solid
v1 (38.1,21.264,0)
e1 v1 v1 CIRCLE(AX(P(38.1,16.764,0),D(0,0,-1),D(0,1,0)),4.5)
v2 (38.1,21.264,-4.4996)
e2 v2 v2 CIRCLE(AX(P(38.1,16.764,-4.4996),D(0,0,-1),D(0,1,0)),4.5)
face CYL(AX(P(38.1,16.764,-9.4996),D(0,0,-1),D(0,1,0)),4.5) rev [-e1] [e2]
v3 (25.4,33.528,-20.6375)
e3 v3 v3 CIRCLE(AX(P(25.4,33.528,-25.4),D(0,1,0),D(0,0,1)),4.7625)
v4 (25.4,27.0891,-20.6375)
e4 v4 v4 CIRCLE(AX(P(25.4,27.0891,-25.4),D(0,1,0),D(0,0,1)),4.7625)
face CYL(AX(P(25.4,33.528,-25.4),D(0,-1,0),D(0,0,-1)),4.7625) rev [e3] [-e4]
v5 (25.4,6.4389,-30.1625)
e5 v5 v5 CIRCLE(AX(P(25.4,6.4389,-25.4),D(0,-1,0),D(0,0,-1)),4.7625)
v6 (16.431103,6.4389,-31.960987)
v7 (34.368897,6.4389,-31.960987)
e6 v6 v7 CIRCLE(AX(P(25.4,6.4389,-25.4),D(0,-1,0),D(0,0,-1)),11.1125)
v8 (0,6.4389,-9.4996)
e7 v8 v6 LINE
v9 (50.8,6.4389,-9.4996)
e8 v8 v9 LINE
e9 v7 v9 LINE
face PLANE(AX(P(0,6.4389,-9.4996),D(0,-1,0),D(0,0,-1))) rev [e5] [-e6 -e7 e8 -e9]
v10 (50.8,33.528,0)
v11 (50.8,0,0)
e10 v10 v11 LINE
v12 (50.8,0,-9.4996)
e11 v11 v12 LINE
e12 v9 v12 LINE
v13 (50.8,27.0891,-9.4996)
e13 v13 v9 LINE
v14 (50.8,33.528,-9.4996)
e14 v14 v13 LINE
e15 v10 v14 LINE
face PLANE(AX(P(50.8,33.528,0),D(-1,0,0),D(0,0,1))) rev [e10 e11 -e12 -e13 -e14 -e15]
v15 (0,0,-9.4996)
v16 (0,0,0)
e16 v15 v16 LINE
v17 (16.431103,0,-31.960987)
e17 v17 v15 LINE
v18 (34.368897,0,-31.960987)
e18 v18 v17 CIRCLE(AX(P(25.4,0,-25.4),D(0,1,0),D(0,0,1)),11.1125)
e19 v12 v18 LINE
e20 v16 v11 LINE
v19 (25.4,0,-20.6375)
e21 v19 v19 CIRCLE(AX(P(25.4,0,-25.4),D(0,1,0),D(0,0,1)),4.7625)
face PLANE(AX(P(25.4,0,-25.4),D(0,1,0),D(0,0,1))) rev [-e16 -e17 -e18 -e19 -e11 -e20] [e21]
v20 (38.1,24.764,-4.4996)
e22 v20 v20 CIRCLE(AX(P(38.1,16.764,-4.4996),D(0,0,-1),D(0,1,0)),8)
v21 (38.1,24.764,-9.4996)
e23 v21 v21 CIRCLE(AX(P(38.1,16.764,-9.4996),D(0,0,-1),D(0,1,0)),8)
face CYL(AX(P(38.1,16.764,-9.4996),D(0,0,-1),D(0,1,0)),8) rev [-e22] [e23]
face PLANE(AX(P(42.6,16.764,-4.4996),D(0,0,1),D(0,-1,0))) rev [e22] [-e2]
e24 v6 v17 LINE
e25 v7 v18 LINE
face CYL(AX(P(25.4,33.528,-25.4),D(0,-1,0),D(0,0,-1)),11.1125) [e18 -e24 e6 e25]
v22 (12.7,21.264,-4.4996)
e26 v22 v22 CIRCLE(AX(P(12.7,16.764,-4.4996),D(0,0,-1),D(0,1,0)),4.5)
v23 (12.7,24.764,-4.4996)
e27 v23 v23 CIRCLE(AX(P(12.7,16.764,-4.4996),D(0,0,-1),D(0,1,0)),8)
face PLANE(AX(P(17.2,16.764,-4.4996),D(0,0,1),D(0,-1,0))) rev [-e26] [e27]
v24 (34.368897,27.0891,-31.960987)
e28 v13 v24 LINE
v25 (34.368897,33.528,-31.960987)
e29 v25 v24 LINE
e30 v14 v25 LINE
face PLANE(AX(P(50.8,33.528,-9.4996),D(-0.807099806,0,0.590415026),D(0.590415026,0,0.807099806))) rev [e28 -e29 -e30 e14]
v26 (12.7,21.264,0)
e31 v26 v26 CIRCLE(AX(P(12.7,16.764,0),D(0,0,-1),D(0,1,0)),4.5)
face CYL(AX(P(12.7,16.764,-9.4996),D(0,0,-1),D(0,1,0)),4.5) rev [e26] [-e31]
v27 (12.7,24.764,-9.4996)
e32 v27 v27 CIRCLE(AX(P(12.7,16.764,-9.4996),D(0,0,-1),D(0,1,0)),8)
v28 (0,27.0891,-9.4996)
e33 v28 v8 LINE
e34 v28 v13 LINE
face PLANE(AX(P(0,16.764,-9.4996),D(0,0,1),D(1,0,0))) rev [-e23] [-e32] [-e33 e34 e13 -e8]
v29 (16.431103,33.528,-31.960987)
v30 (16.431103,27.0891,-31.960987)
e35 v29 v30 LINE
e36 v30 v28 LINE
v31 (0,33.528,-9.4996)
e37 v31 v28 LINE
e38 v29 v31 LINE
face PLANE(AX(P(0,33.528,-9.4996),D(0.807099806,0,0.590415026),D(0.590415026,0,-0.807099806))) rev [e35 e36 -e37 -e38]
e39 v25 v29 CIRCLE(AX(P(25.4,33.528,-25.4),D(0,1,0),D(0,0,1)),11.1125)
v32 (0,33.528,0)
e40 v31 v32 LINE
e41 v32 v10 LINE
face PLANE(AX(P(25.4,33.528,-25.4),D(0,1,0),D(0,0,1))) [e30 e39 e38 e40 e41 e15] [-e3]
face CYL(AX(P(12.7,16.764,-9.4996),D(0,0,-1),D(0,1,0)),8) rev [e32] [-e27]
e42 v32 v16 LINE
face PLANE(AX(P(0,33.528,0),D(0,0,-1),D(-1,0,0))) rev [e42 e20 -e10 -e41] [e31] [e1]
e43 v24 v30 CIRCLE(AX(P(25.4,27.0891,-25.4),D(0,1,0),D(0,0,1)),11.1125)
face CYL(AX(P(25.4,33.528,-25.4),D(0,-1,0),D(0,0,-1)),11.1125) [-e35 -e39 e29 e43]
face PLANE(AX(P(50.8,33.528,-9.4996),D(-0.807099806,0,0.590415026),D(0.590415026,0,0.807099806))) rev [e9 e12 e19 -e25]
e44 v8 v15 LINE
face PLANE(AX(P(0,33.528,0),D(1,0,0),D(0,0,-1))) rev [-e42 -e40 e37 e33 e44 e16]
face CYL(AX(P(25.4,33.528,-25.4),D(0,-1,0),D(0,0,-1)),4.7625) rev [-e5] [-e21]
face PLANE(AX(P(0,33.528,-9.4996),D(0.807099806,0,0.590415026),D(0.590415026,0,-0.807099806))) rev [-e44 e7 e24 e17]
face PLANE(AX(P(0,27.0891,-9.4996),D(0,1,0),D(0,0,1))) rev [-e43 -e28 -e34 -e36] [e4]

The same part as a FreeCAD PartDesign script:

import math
import FreeCAD as App
import Part
import Sketcher
Q = App.Units.Quantity


def add_polygon(sketch, points):
    """Adds a closed chain of lines whose ends are joined by coincident constraints."""
    first, n = sketch.GeometryCount, len(points)
    for a, b in zip(points, points[1:] + points[:1]):
        sketch.addGeometry(Part.LineSegment(App.Vector(*a, 0), App.Vector(*b, 0)), False)
    for i in range(n):
        sketch.addConstraint(Sketcher.Constraint("Coincident", first + i, 2, first + (i + 1) % n, 1))

doc = App.newDocument("Part")
body = doc.addObject("PartDesign::Body", "Body")

sketch1 = body.newObject("Sketcher::SketchObject", "Sketch")
sketch1.AttachmentSupport = (doc.getObject("XZ_Plane"), [""])
sketch1.MapMode = "FlatFace"
sketch1.addGeometry([
    Part.LineSegment(App.Vector(0, 0, 0), App.Vector(50.8, 0, 0)),
    Part.LineSegment(App.Vector(50.8, 0, 0), App.Vector(50.8, -9.4996, 0)),
    Part.LineSegment(App.Vector(50.8, -9.4996, 0), App.Vector(34.368897, -31.960987, 0)),
    Part.ArcOfCircle(Part.Circle(App.Vector(25.4, -25.4, 0), App.Vector(0, 0, 1), 11.1125), math.radians(-143.813535), math.radians(-36.186465)),
    Part.LineSegment(App.Vector(16.431103, -31.960987, 0), App.Vector(0, -9.4996, 0)),
    Part.LineSegment(App.Vector(0, -9.4996, 0), App.Vector(0, 0, 0)),
    Part.Circle(App.Vector(25.4, -25.4, 0), App.Vector(0, 0, 1), 4.7625),
], False)
sketch1.addConstraint([
    Sketcher.Constraint("Coincident", 0, 2, 1, 1),
    Sketcher.Constraint("Coincident", 1, 2, 2, 1),
    Sketcher.Constraint("Tangent", 2, 2, 3, 2),
    Sketcher.Constraint("Tangent", 3, 1, 4, 1),
    Sketcher.Constraint("Coincident", 4, 2, 5, 1),
    Sketcher.Constraint("Coincident", 5, 2, 0, 1),
    Sketcher.Constraint("Horizontal", 0),
    Sketcher.Constraint("Vertical", 1),
    Sketcher.Constraint("Vertical", 5),
    Sketcher.Constraint("Coincident", 5, 2, -1, 1),
    Sketcher.Constraint("Coincident", 6, 3, 3, 3),
    Sketcher.Constraint("Horizontal", 2, 2, 3, 1),
    Sketcher.Constraint("Horizontal", 1, 2, 4, 2),
    Sketcher.Constraint("DistanceX", 0, 1, 0, 2, Q("2 in")),
    Sketcher.Constraint("Diameter", 6, Q("0.375 in")),
    Sketcher.Constraint("DistanceY", 3, 3, -1, 1, Q("1 in")),
    Sketcher.Constraint("Radius", 3, Q("0.4375 in")),
    Sketcher.Constraint("DistanceY", 1, 2, 1, 1, Q("0.374 in")),
])
pad1 = body.newObject("PartDesign::Pad", "Pad")
pad1.Profile = sketch1
pad1.Length = Q("1.32 in")
pad1.Reversed = True

sketch2 = body.newObject("Sketcher::SketchObject", "Sketch001")
sketch2.AttachmentSupport = (doc.getObject("YZ_Plane"), [""])
sketch2.MapMode = "FlatFace"
sketch2.AttachmentOffset = App.Placement(App.Vector(0, 0, 2 * 25.4), App.Rotation())
add_polygon(sketch2, [(27.0891, -9.4996), (6.4389, -9.4996), (6.4389, -41.2496), (27.0891, -41.2496)])
sketch2.addConstraint([
    Sketcher.Constraint("Horizontal", 0),
    Sketcher.Constraint("Vertical", 1),
    Sketcher.Constraint("Horizontal", 2),
    Sketcher.Constraint("Vertical", 3),
    Sketcher.Constraint("DistanceY", 1, 2, 1, 1, Q("1.25 in")),
    Sketcher.Constraint("DistanceX", 0, 2, 0, 1, Q("0.813 in")),
    Sketcher.Constraint("DistanceY", 0, 2, -1, 1, Q("0.374 in")),
    Sketcher.Constraint("DistanceX", -1, 1, 0, 2, Q("0.2535 in")),
])
pocket1 = body.newObject("PartDesign::Pocket", "Pocket")
pocket1.Profile = sketch2
pocket1.Type = "ThroughAll"

sketch3 = body.newObject("Sketcher::SketchObject", "Sketch002")
sketch3.AttachmentSupport = (doc.getObject("XY_Plane"), [""])
sketch3.MapMode = "FlatFace"
sketch3.AttachmentOffset = App.Placement(App.Vector(0, 0, -0.374 * 25.4), App.Rotation())
sketch3.addGeometry([
    Part.Circle(App.Vector(12.7, 16.764, 0), App.Vector(0, 0, 1), 4.5),
    Part.Circle(App.Vector(38.1, 16.764, 0), App.Vector(0, 0, 1), 4.5),
], False)
sketch3.addConstraint([
    Sketcher.Constraint("Equal", 0, 1),
    Sketcher.Constraint("Horizontal", 0, 3, 1, 3),
    Sketcher.Constraint("DistanceX", 0, 3, 1, 3, Q("1 in")),
    Sketcher.Constraint("DistanceX", -1, 1, 0, 3, Q("0.5 in")),
    Sketcher.Constraint("Diameter", 0, 9.0),
    Sketcher.Constraint("DistanceY", -1, 1, 0, 3, Q("0.66 in")),
])
doc.recompute()
hole = body.newObject("PartDesign::Hole", "Hole")
hole.Profile = sketch3
hole.ThreadType = "None"
hole.Diameter = 9
hole.DepthType = "ThroughAll"
hole.HoleCutType = "Counterbore"
hole.HoleCutDiameter = 16
hole.HoleCutDepth = 5
hole.Reversed = True

doc.recompute()
